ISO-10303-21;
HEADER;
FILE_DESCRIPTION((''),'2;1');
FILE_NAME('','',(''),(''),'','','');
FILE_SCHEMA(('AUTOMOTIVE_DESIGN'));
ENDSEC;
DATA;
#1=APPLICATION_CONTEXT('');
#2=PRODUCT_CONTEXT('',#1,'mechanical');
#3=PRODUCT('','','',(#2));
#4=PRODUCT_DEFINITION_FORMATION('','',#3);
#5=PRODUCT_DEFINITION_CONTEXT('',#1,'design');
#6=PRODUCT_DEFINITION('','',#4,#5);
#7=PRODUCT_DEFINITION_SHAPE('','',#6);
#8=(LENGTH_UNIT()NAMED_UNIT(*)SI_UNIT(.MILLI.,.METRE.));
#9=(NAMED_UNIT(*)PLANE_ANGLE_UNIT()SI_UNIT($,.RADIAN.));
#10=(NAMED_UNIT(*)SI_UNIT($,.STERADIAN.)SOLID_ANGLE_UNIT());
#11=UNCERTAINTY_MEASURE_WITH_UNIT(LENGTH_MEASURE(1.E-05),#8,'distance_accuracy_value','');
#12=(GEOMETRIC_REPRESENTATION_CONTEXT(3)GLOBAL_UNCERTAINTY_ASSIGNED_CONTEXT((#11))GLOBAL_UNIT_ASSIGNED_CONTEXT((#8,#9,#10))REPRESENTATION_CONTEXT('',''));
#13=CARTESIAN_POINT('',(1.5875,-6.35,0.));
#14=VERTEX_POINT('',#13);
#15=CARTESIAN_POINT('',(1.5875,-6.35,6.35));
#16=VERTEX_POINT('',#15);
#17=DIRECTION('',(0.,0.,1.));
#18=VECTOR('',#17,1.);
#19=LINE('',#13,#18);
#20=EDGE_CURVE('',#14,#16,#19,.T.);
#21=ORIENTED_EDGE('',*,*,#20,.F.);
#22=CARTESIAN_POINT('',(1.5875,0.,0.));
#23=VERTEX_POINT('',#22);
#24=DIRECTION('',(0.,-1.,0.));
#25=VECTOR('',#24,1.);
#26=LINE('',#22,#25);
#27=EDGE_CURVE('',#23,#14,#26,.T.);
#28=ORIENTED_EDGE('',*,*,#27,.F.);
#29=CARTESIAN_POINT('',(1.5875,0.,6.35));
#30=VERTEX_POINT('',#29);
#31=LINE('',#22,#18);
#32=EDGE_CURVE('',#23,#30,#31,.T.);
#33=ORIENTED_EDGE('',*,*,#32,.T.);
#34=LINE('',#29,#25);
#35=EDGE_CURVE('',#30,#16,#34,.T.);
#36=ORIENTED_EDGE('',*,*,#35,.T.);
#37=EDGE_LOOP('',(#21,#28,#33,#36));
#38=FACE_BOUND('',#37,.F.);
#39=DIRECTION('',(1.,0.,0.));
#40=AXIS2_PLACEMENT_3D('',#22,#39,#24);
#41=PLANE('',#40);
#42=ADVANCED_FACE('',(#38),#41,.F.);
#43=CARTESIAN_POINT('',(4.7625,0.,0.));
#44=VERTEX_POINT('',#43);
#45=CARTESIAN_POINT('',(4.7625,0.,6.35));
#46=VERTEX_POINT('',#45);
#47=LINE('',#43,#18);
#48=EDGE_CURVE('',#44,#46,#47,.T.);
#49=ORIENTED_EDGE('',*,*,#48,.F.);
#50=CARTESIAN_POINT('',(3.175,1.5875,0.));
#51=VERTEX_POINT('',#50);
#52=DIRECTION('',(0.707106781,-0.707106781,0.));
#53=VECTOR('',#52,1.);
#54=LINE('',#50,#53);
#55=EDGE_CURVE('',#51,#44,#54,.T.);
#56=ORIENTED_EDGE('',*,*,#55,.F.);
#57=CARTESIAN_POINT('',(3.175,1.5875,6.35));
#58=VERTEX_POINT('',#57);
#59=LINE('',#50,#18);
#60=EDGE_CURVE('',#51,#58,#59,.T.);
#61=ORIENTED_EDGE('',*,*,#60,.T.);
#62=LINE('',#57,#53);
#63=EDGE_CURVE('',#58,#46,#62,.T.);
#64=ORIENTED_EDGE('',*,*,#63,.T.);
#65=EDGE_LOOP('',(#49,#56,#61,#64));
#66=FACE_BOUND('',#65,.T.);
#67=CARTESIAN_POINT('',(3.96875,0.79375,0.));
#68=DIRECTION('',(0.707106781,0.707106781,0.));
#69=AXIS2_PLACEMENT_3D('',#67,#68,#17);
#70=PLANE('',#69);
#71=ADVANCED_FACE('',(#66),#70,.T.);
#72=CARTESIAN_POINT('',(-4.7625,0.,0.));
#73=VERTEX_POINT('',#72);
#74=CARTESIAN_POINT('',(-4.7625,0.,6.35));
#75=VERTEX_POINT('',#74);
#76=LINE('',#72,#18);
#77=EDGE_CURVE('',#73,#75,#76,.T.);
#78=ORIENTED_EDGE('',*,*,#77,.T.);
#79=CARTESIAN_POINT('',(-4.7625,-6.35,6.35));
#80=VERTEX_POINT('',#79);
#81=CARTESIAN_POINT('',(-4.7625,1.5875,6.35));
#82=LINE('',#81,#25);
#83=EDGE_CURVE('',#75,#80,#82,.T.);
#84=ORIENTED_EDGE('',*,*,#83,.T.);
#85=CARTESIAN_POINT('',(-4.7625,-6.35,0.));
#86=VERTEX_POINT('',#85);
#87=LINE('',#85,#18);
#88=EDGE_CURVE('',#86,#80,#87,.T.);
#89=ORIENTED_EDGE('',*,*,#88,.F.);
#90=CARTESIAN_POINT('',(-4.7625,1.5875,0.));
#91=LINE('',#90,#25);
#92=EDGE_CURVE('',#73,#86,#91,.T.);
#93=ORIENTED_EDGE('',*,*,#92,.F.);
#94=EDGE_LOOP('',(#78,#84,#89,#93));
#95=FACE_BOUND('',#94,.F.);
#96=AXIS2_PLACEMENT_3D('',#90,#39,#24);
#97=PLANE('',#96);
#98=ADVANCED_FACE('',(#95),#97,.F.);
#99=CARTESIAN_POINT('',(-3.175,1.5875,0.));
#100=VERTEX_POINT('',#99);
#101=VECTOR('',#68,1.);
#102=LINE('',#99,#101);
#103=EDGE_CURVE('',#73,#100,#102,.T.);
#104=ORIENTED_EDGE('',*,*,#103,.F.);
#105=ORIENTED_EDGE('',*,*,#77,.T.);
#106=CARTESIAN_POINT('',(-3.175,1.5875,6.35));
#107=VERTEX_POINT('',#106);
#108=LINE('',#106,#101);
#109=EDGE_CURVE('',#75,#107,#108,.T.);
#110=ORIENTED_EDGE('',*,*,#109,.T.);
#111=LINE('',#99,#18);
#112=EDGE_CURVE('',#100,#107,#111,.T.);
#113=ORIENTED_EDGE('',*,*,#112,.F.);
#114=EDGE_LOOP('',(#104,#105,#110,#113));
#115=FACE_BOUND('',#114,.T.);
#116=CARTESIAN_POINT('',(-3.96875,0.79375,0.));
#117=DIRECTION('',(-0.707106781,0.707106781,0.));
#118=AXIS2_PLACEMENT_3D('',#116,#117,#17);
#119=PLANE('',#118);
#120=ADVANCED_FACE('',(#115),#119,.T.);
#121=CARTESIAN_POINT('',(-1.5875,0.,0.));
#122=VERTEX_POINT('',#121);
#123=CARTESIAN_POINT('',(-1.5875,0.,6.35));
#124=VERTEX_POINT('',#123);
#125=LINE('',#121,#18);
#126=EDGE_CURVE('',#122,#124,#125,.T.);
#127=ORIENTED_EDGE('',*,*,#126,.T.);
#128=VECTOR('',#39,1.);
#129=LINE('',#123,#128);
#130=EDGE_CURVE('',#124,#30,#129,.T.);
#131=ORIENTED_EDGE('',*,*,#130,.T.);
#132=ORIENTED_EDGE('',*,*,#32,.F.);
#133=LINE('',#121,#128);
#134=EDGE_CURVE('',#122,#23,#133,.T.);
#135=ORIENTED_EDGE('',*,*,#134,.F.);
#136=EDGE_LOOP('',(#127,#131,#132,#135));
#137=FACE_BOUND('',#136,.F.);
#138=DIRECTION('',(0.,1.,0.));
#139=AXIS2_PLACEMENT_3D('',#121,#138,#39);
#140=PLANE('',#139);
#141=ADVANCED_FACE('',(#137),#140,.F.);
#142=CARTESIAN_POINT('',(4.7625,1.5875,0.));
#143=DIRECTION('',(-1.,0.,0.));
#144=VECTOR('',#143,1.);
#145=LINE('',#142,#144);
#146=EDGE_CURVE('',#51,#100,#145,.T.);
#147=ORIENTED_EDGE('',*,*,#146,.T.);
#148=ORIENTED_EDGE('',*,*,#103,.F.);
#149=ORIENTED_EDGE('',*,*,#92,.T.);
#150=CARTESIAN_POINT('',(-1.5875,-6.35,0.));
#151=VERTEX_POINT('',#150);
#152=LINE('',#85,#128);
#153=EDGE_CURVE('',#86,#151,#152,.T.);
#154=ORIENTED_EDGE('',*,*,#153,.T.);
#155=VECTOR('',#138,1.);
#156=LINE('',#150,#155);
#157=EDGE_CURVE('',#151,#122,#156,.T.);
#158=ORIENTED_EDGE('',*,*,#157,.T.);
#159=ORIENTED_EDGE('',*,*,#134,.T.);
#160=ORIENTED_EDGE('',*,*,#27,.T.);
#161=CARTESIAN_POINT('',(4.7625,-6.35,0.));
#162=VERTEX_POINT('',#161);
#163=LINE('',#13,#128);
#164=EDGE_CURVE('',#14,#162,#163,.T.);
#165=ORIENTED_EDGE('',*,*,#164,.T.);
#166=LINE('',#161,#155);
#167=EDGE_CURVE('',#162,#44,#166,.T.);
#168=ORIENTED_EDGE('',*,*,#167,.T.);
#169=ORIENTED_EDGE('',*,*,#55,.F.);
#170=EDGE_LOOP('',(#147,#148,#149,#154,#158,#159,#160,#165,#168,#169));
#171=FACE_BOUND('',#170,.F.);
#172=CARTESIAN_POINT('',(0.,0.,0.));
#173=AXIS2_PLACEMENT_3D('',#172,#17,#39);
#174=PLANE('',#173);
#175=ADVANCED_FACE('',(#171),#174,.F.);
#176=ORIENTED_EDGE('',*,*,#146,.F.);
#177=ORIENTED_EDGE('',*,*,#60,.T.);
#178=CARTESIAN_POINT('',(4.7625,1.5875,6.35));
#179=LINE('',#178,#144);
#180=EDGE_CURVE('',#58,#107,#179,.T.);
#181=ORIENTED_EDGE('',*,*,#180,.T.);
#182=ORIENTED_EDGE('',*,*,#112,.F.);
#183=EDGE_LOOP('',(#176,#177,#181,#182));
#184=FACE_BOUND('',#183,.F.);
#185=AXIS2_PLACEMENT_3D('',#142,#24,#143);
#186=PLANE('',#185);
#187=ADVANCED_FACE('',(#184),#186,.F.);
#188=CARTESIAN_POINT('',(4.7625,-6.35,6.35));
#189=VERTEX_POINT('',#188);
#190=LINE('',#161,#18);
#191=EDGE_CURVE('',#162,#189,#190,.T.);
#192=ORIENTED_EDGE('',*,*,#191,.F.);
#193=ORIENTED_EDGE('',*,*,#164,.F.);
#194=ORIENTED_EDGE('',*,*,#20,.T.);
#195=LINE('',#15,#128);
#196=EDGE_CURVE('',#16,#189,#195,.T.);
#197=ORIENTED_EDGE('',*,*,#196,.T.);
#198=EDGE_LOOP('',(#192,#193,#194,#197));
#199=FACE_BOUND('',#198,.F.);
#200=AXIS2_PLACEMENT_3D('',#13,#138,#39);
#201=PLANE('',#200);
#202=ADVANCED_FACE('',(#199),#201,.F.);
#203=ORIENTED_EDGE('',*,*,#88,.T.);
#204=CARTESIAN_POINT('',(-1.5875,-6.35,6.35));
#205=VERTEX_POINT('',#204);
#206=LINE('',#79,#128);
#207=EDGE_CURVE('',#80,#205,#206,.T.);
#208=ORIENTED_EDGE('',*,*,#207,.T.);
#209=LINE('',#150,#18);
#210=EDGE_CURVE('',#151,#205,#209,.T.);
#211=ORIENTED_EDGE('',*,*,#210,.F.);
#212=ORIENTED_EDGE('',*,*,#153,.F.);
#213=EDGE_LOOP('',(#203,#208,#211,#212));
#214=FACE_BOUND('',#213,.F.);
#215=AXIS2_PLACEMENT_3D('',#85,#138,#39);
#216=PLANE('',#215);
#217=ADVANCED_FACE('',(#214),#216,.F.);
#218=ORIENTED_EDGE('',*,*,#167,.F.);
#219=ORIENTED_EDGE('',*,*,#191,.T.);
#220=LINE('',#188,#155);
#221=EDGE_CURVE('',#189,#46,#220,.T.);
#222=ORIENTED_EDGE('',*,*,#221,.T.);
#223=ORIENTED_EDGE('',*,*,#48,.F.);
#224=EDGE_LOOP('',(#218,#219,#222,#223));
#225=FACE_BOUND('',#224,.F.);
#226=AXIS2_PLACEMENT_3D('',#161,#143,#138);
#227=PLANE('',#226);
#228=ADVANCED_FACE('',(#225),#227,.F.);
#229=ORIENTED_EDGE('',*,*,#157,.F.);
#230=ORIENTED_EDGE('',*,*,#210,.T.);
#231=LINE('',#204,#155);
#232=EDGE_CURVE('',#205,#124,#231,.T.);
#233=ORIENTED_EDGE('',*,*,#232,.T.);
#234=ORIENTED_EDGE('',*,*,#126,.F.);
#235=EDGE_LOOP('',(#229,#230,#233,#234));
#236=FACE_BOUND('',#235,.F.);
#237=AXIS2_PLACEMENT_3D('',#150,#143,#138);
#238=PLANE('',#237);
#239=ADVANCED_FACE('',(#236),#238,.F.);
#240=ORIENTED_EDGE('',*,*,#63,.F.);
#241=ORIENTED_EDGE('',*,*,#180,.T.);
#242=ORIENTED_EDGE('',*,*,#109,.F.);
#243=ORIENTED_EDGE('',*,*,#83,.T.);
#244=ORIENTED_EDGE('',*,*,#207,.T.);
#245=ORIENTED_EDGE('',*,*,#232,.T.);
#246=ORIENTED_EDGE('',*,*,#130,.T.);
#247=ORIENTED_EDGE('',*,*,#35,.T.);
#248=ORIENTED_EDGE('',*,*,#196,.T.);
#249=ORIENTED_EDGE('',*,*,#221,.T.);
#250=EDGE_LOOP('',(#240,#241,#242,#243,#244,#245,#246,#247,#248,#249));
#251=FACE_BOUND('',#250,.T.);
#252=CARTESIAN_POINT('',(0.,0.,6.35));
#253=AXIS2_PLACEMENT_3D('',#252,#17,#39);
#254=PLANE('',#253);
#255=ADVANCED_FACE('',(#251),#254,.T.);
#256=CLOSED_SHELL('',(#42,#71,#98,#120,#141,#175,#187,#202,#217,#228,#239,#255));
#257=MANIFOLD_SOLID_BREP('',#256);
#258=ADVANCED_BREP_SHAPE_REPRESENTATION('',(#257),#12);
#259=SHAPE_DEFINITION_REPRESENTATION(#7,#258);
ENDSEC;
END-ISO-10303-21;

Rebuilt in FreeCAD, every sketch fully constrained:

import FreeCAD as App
import Part
import Sketcher
from FreeCAD import Vector
Q = App.Units.Quantity


def edges_at(feature, points):
    """Names of the edges that pass closest to the given points."""
    edges = feature.Shape.Edges
    near = lambda p: min(range(len(edges)), key=lambda i: edges[i].distToShape(Part.Vertex(*p))[0])
    return sorted({f"Edge{near(p) + 1}" for p in points})


def add_polygon(sketch, points):
    """Adds a closed chain of lines whose ends are joined by coincident constraints."""
    first, n = sketch.GeometryCount, len(points)
    for a, b in zip(points, points[1:] + points[:1]):
        sketch.addGeometry(Part.LineSegment(App.Vector(*a, 0), App.Vector(*b, 0)), False)
    for i in range(n):
        sketch.addConstraint(Sketcher.Constraint("Coincident", first + i, 2, first + (i + 1) % n, 1))

doc = App.newDocument("Part")
body = doc.addObject("PartDesign::Body", "Body")

sketch1 = doc.addObject("Sketcher::SketchObject", "Sketch")
body.addObject(sketch1)
sketch1.AttachmentSupport = (doc.XY_Plane, [""])
sketch1.MapMode = "FlatFace"
add_polygon(sketch1, [(-4.8, 1.6), (-4.8, -6.3), (-1.6, -6.3), (-1.6, 0), (1.6, 0), (1.6, -6.3), (4.8, -6.3), (4.8, 1.6)])
sketch1.addConstraint(Sketcher.Constraint("Vertical", 0))
sketch1.addConstraint(Sketcher.Constraint("Horizontal", 1))
sketch1.addConstraint(Sketcher.Constraint("Vertical", 2))
sketch1.addConstraint(Sketcher.Constraint("Horizontal", 3))
sketch1.addConstraint(Sketcher.Constraint("Vertical", 4))
sketch1.addConstraint(Sketcher.Constraint("Horizontal", 5))
sketch1.addConstraint(Sketcher.Constraint("Vertical", 6))
sketch1.addConstraint(Sketcher.Constraint("Horizontal", 7))
sketch1.addConstraint(Sketcher.Constraint("Symmetric", 2, 2, 3, 2, -1, 1))
sketch1.addConstraint(Sketcher.Constraint("Symmetric", 0, 2, 5, 2, -2))
sketch1.addConstraint(Sketcher.Constraint("Equal", 1, 3))
sketch1.addConstraint(Sketcher.Constraint("DistanceY", 2, 1, 2, 2, Q("0.25 in")))
sketch1.addConstraint(Sketcher.Constraint("DistanceX", 1, 1, 1, 2, Q("0.125 in")))
sketch1.addConstraint(Sketcher.Constraint("DistanceY", -1, 1, 6, 2, Q("0.0625 in")))
pad1 = doc.addObject("PartDesign::Pad", "Pad")
body.addObject(pad1)
pad1.Profile = sketch1
pad1.Length = Q("0.25 in")
doc.recompute()

chamfer = doc.addObject("PartDesign::Chamfer", "Chamfer")
body.addObject(chamfer)
chamfer.Base = (pad1, edges_at(pad1, [(-4.763, 1.587, 3.175), (4.763, 1.587, 3.175)]))
chamfer.Size = Q("0.0625 in")

doc.recompute()
